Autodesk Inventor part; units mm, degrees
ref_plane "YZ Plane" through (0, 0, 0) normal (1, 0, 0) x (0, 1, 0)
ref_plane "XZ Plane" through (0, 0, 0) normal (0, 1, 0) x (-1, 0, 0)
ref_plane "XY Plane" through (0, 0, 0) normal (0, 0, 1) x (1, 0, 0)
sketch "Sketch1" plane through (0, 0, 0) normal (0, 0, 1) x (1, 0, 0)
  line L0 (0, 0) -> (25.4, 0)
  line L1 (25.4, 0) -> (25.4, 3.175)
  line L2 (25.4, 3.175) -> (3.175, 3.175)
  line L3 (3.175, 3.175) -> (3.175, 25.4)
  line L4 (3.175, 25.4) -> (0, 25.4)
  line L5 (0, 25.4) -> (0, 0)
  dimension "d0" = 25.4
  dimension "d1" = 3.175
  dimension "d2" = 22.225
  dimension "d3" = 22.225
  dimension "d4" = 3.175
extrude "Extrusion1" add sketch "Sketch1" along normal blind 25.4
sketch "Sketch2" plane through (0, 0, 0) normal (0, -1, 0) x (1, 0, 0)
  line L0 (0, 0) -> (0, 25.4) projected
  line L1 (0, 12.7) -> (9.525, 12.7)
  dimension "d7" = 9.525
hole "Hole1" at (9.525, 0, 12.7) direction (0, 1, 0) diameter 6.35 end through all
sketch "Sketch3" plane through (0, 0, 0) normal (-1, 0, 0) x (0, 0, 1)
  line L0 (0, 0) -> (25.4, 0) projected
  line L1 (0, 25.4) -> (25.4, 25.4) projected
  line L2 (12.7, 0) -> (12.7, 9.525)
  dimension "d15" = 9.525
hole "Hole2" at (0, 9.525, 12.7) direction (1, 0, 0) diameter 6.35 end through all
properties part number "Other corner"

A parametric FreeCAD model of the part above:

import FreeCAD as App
import Part
import Sketcher
Q = App.Units.Quantity


def add_polygon(sketch, points):
    """Adds a closed chain of lines whose ends are joined by coincident constraints."""
    first, n = sketch.GeometryCount, len(points)
    for a, b in zip(points, points[1:] + points[:1]):
        sketch.addGeometry(Part.LineSegment(App.Vector(*a, 0), App.Vector(*b, 0)), False)
    for i in range(n):
        sketch.addConstraint(Sketcher.Constraint("Coincident", first + i, 2, first + (i + 1) % n, 1))

doc = App.newDocument("Part")
params = doc.addObject("Spreadsheet::Sheet", "Params")
for row, (alias, value) in enumerate([
    ("sketch1_width", "1 in"),
    ("sketch1_width2", "0.875 in"),
    ("pad1_length", "1 in"),
    ("sketch2_diameter", "0.25 in"),
    ("hole_diameter", "0.25 in"),
    ("sketch3_diameter", "0.25 in"),
    ("hole2_diameter", "0.25 in"),
], start=1):
    params.set(f"A{row}", alias)
    params.set(f"B{row}", "=" + value)
    params.setAlias(f"B{row}", alias)

body = doc.addObject("PartDesign::Body", "Body")

# Sketch on XY plane
sketch1 = body.newObject("Sketcher::SketchObject", "Sketch")
sketch1.AttachmentSupport = (doc.getObject("XY_Plane"), [""])
sketch1.MapMode = "FlatFace"
add_polygon(sketch1, [(0, 25.4), (0, 0), (25.4, 0), (25.4, 3.2), (3.2, 3.2), (3.2, 25.4)])  # lines 0-5
sketch1.addConstraint(Sketcher.Constraint("Vertical", 0))
sketch1.addConstraint(Sketcher.Constraint("Horizontal", 1))
sketch1.addConstraint(Sketcher.Constraint("Vertical", 2))
sketch1.addConstraint(Sketcher.Constraint("Horizontal", 3))
sketch1.addConstraint(Sketcher.Constraint("Vertical", 4))
sketch1.addConstraint(Sketcher.Constraint("Horizontal", 5))
sketch1.addConstraint(Sketcher.Constraint("Coincident", 0, 2, -1, 1))
sketch1.addConstraint(Sketcher.Constraint("Equal", 1, 0))
sketch1.addConstraint(Sketcher.Constraint("Equal", 5, 2))
sketch1.addConstraint(Sketcher.Constraint("DistanceX", 1, 1, 1, 2, Q("1 in")))
sketch1.addConstraint(Sketcher.Constraint("DistanceX", 3, 2, 3, 1, Q("0.875 in")))
sketch1.setExpression("Constraints[15]", "Params.sketch1_width")
sketch1.setExpression("Constraints[16]", "Params.sketch1_width2")
pad1 = body.newObject("PartDesign::Pad", "Pad")
pad1.Profile = sketch1
pad1.setExpression("Length", "Params.pad1_length")

# Sketch on XZ plane
sketch2 = body.newObject("Sketcher::SketchObject", "Sketch001")
sketch2.AttachmentSupport = (doc.getObject("XZ_Plane"), [""])
sketch2.MapMode = "FlatFace"
sketch2.addGeometry(Part.Circle(App.Vector(9.5, 12.7, 0), App.Vector(0, 0, 1), 3.2), False)
sketch2.addConstraint(Sketcher.Constraint("Diameter", 0, Q("0.25 in")))
sketch2.addConstraint(Sketcher.Constraint("DistanceY", -1, 1, 0, 3, Q("0.5 in")))
sketch2.addConstraint(Sketcher.Constraint("DistanceX", -1, 1, 0, 3, Q("0.375 in")))
sketch2.setExpression("Constraints[0]", "Params.sketch2_diameter")
doc.recompute()
hole = body.newObject("PartDesign::Hole", "Hole")
hole.Profile = sketch2
hole.ThreadType = "None"
hole.setExpression("Diameter", "Params.hole_diameter")
hole.DepthType = "ThroughAll"

# Sketch on YZ plane
sketch3 = body.newObject("Sketcher::SketchObject", "Sketch002")
sketch3.AttachmentSupport = (doc.getObject("YZ_Plane"), [""])
sketch3.MapMode = "FlatFace"
sketch3.addGeometry(Part.Circle(App.Vector(9.5, 12.7, 0), App.Vector(0, 0, 1), 3.2), False)
sketch3.addConstraint(Sketcher.Constraint("Diameter", 0, Q("0.25 in")))
sketch3.addConstraint(Sketcher.Constraint("DistanceY", -1, 1, 0, 3, Q("0.5 in")))
sketch3.addConstraint(Sketcher.Constraint("DistanceX", -1, 1, 0, 3, Q("0.375 in")))
sketch3.setExpression("Constraints[0]", "Params.sketch3_diameter")
doc.recompute()
hole2 = body.newObject("PartDesign::Hole", "Hole001")
hole2.Profile = sketch3
hole2.ThreadType = "None"
hole2.setExpression("Diameter", "Params.hole2_diameter")
hole2.DepthType = "ThroughAll"
hole2.Reversed = True

doc.recompute()
